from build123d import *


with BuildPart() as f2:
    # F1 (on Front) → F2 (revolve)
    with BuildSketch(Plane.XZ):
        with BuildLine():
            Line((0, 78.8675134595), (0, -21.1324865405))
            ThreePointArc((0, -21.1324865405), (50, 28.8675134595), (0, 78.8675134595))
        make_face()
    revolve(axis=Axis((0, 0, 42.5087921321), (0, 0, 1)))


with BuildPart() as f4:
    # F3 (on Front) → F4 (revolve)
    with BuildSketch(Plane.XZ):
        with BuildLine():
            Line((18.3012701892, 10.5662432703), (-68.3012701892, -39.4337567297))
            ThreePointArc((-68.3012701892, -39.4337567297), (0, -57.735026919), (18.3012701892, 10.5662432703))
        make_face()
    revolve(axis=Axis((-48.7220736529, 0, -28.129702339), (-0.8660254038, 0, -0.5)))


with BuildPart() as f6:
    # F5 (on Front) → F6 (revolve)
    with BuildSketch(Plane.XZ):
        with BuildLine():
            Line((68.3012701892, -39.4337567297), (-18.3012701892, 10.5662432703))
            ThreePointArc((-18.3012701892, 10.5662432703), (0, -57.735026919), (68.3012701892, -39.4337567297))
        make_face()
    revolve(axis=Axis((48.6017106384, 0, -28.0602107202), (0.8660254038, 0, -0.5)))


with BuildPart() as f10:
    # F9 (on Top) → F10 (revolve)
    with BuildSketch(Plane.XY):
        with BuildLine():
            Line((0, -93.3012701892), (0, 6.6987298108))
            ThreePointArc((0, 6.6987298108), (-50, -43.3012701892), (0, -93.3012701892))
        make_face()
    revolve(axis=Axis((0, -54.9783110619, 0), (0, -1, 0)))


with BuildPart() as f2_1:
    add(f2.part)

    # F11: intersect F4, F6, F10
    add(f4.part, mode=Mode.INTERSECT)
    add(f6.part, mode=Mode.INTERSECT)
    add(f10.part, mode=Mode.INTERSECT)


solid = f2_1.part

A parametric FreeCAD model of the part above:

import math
import FreeCAD as App
import Part
import Sketcher

V = App.Vector
Q = App.Units.Quantity

doc = App.newDocument("Part")
body = doc.addObject("PartDesign::Body", "Body")

sketch1 = body.newObject("Sketcher::SketchObject", "Sketch")
sketch1.AttachmentSupport = (doc.getObject("XZ_Plane"), [""])
sketch1.MapMode = "FlatFace"
sketch1.addGeometry(Part.LineSegment(V(0, 79, 0), V(0, -21, 0)), False)
sketch1.addGeometry(Part.ArcOfCircle(Part.Circle(V(0, 29, 0), V(0, 0, 1), 50), math.radians(-90), math.radians(90)), False)
sketch1.addConstraint(Sketcher.Constraint("Coincident", 0, 1, 1, 2))
sketch1.addConstraint(Sketcher.Constraint("Coincident", 1, 1, 0, 2))
sketch1.addConstraint(Sketcher.Constraint("Vertical", 0))
sketch1.addConstraint(Sketcher.Constraint("PointOnObject", 1, 3, -2))
sketch1.addConstraint(Sketcher.Constraint("PointOnObject", 0, 1, -2))
sketch1.addConstraint(Sketcher.Constraint("Radius", 1, Q("50 mm")))
sketch1.addConstraint(Sketcher.Constraint("DistanceY", -1, 1, 1, 3, Q("28.867513 mm")))
revolution = body.newObject("PartDesign::Revolution", "Revolution")
revolution.Profile = sketch1
revolution.ReferenceAxis = (sketch1, ["V_Axis"])
revolution.Angle = 360
body2 = doc.addObject("PartDesign::Body", "Body001")

sketch2 = body2.newObject("Sketcher::SketchObject", "Sketch001")
sketch2.AttachmentSupport = (doc.getObject("XZ_Plane001"), [""])
sketch2.MapMode = "FlatFace"
sketch2.addGeometry(Part.LineSegment(V(18, 11, 0), V(-68, -39, 0)), False)
sketch2.addGeometry(Part.ArcOfCircle(Part.Circle(V(-25, -14, 0), V(0, 0, 1), 50), math.radians(-150), math.radians(30)), False)
sketch2.addGeometry(Part.LineSegment(V(18, 11, 0), V(-68, -39, 0)), True)
sketch2.addConstraint(Sketcher.Constraint("Coincident", 0, 1, 1, 2))
sketch2.addConstraint(Sketcher.Constraint("Coincident", 1, 1, 0, 2))
sketch2.addConstraint(Sketcher.Constraint("Coincident", 2, 1, 0, 1))
sketch2.addConstraint(Sketcher.Constraint("Coincident", 2, 2, 1, 1))
sketch2.addConstraint(Sketcher.Constraint("Radius", 1, Q("50 mm")))
sketch2.addConstraint(Sketcher.Constraint("Angle", 0, Q("-150 deg")))
sketch2.addConstraint(Sketcher.Constraint("DistanceX", 1, 3, -1, 1, Q("25 mm")))
sketch2.addConstraint(Sketcher.Constraint("DistanceY", 1, 3, 0, 1, Q("25 mm")))
sketch2.addConstraint(Sketcher.Constraint("DistanceY", 1, 3, -1, 1, Q("14.433757 mm")))
revolution2 = body2.newObject("PartDesign::Revolution", "Revolution001")
revolution2.Profile = sketch2
revolution2.ReferenceAxis = (sketch2, ["Axis0"])
revolution2.Angle = 360
body3 = doc.addObject("PartDesign::Body", "Body002")

sketch3 = body3.newObject("Sketcher::SketchObject", "Sketch002")
sketch3.AttachmentSupport = (doc.getObject("XZ_Plane002"), [""])
sketch3.MapMode = "FlatFace"
sketch3.addGeometry(Part.LineSegment(V(68, -39, 0), V(-18, 11, 0)), False)
sketch3.addGeometry(Part.ArcOfCircle(Part.Circle(V(25, -14, 0), V(0, 0, 1), 50), math.radians(150), math.radians(330)), False)
sketch3.addGeometry(Part.LineSegment(V(-18, 11, 0), V(68, -39, 0)), True)
sketch3.addConstraint(Sketcher.Constraint("Coincident", 0, 1, 1, 2))
sketch3.addConstraint(Sketcher.Constraint("Coincident", 1, 1, 0, 2))
sketch3.addConstraint(Sketcher.Constraint("Coincident", 2, 1, 1, 1))
sketch3.addConstraint(Sketcher.Constraint("Coincident", 2, 2, 0, 1))
sketch3.addConstraint(Sketcher.Constraint("Radius", 1, Q("50 mm")))
sketch3.addConstraint(Sketcher.Constraint("Angle", 0, Q("150 deg")))
sketch3.addConstraint(Sketcher.Constraint("DistanceX", -1, 1, 1, 3, Q("25 mm")))
sketch3.addConstraint(Sketcher.Constraint("DistanceY", 0, 1, 1, 3, Q("25 mm")))
sketch3.addConstraint(Sketcher.Constraint("DistanceY", 1, 3, -1, 1, Q("14.433757 mm")))
revolution3 = body3.newObject("PartDesign::Revolution", "Revolution002")
revolution3.Profile = sketch3
revolution3.ReferenceAxis = (sketch3, ["Axis0"])
revolution3.Angle = 360
body4 = doc.addObject("PartDesign::Body", "Body003")

sketch4 = body4.newObject("Sketcher::SketchObject", "Sketch003")
sketch4.AttachmentSupport = (doc.getObject("XY_Plane003"), [""])
sketch4.MapMode = "FlatFace"
sketch4.addGeometry(Part.LineSegment(V(0, -93, 0), V(0, 7, 0)), False)
sketch4.addGeometry(Part.ArcOfCircle(Part.Circle(V(0, -43, 0), V(0, 0, 1), 50), math.radians(90), math.radians(270)), False)
sketch4.addConstraint(Sketcher.Constraint("Coincident", 0, 1, 1, 2))
sketch4.addConstraint(Sketcher.Constraint("Coincident", 1, 1, 0, 2))
sketch4.addConstraint(Sketcher.Constraint("Vertical", 0))
sketch4.addConstraint(Sketcher.Constraint("PointOnObject", 1, 3, -2))
sketch4.addConstraint(Sketcher.Constraint("PointOnObject", 0, 1, -2))
sketch4.addConstraint(Sketcher.Constraint("Radius", 1, Q("50 mm")))
sketch4.addConstraint(Sketcher.Constraint("DistanceY", 1, 3, -1, 1, Q("43.30127 mm")))
revolution4 = body4.newObject("PartDesign::Revolution", "Revolution003")
revolution4.Profile = sketch4
revolution4.ReferenceAxis = (sketch4, ["V_Axis"])
revolution4.Angle = 360
doc.recompute()

boolean = body.newObject("PartDesign::Boolean", "Boolean")
boolean.Type = "Common"
boolean.addObjects([body2])
doc.recompute()

boolean2 = body.newObject("PartDesign::Boolean", "Boolean001")
boolean2.Type = "Common"
boolean2.addObjects([body3])
doc.recompute()

boolean3 = body.newObject("PartDesign::Boolean", "Boolean002")
boolean3.Type = "Common"
boolean3.addObjects([body4])

doc.recompute()
